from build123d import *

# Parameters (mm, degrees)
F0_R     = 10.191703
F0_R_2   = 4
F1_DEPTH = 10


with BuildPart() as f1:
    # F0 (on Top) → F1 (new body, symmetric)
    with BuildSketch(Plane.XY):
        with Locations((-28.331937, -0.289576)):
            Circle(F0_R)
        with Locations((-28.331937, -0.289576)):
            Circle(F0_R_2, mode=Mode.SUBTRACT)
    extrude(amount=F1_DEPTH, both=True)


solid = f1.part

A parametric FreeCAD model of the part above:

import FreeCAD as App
import Part
import Sketcher
from FreeCAD import Vector

doc = App.newDocument("Part")
body = doc.addObject("PartDesign::Body", "Body")

sketch1 = body.newObject("Sketcher::SketchObject", "Sketch")
sketch1.AttachmentSupport = (doc.getObject("XY_Plane"), [""])
sketch1.MapMode = "FlatFace"
sketch1.addGeometry(Part.Circle(Vector(-28.331937, -0.289576, 0), Vector(0, 0, 1), 10.191703), False)
sketch1.addGeometry(Part.Circle(Vector(-28.331937, -0.289576, 0), Vector(0, 0, 1), 4), False)
sketch1.addConstraint(Sketcher.Constraint("Coincident", 1, 3, 0, 3))
sketch1.addConstraint(Sketcher.Constraint("Diameter", 1, 8.0))
sketch1.addConstraint(Sketcher.Constraint("Diameter", 0, 20.383406))
sketch1.addConstraint(Sketcher.Constraint("DistanceX", 0, 3, -1, 1, 28.331937))
sketch1.addConstraint(Sketcher.Constraint("DistanceY", 0, 3, -1, 1, 0.289576))
pad1 = body.newObject("PartDesign::Pad", "Pad")
pad1.Profile = sketch1
pad1.Length = 20
pad1.Midplane = True

doc.recompute()
